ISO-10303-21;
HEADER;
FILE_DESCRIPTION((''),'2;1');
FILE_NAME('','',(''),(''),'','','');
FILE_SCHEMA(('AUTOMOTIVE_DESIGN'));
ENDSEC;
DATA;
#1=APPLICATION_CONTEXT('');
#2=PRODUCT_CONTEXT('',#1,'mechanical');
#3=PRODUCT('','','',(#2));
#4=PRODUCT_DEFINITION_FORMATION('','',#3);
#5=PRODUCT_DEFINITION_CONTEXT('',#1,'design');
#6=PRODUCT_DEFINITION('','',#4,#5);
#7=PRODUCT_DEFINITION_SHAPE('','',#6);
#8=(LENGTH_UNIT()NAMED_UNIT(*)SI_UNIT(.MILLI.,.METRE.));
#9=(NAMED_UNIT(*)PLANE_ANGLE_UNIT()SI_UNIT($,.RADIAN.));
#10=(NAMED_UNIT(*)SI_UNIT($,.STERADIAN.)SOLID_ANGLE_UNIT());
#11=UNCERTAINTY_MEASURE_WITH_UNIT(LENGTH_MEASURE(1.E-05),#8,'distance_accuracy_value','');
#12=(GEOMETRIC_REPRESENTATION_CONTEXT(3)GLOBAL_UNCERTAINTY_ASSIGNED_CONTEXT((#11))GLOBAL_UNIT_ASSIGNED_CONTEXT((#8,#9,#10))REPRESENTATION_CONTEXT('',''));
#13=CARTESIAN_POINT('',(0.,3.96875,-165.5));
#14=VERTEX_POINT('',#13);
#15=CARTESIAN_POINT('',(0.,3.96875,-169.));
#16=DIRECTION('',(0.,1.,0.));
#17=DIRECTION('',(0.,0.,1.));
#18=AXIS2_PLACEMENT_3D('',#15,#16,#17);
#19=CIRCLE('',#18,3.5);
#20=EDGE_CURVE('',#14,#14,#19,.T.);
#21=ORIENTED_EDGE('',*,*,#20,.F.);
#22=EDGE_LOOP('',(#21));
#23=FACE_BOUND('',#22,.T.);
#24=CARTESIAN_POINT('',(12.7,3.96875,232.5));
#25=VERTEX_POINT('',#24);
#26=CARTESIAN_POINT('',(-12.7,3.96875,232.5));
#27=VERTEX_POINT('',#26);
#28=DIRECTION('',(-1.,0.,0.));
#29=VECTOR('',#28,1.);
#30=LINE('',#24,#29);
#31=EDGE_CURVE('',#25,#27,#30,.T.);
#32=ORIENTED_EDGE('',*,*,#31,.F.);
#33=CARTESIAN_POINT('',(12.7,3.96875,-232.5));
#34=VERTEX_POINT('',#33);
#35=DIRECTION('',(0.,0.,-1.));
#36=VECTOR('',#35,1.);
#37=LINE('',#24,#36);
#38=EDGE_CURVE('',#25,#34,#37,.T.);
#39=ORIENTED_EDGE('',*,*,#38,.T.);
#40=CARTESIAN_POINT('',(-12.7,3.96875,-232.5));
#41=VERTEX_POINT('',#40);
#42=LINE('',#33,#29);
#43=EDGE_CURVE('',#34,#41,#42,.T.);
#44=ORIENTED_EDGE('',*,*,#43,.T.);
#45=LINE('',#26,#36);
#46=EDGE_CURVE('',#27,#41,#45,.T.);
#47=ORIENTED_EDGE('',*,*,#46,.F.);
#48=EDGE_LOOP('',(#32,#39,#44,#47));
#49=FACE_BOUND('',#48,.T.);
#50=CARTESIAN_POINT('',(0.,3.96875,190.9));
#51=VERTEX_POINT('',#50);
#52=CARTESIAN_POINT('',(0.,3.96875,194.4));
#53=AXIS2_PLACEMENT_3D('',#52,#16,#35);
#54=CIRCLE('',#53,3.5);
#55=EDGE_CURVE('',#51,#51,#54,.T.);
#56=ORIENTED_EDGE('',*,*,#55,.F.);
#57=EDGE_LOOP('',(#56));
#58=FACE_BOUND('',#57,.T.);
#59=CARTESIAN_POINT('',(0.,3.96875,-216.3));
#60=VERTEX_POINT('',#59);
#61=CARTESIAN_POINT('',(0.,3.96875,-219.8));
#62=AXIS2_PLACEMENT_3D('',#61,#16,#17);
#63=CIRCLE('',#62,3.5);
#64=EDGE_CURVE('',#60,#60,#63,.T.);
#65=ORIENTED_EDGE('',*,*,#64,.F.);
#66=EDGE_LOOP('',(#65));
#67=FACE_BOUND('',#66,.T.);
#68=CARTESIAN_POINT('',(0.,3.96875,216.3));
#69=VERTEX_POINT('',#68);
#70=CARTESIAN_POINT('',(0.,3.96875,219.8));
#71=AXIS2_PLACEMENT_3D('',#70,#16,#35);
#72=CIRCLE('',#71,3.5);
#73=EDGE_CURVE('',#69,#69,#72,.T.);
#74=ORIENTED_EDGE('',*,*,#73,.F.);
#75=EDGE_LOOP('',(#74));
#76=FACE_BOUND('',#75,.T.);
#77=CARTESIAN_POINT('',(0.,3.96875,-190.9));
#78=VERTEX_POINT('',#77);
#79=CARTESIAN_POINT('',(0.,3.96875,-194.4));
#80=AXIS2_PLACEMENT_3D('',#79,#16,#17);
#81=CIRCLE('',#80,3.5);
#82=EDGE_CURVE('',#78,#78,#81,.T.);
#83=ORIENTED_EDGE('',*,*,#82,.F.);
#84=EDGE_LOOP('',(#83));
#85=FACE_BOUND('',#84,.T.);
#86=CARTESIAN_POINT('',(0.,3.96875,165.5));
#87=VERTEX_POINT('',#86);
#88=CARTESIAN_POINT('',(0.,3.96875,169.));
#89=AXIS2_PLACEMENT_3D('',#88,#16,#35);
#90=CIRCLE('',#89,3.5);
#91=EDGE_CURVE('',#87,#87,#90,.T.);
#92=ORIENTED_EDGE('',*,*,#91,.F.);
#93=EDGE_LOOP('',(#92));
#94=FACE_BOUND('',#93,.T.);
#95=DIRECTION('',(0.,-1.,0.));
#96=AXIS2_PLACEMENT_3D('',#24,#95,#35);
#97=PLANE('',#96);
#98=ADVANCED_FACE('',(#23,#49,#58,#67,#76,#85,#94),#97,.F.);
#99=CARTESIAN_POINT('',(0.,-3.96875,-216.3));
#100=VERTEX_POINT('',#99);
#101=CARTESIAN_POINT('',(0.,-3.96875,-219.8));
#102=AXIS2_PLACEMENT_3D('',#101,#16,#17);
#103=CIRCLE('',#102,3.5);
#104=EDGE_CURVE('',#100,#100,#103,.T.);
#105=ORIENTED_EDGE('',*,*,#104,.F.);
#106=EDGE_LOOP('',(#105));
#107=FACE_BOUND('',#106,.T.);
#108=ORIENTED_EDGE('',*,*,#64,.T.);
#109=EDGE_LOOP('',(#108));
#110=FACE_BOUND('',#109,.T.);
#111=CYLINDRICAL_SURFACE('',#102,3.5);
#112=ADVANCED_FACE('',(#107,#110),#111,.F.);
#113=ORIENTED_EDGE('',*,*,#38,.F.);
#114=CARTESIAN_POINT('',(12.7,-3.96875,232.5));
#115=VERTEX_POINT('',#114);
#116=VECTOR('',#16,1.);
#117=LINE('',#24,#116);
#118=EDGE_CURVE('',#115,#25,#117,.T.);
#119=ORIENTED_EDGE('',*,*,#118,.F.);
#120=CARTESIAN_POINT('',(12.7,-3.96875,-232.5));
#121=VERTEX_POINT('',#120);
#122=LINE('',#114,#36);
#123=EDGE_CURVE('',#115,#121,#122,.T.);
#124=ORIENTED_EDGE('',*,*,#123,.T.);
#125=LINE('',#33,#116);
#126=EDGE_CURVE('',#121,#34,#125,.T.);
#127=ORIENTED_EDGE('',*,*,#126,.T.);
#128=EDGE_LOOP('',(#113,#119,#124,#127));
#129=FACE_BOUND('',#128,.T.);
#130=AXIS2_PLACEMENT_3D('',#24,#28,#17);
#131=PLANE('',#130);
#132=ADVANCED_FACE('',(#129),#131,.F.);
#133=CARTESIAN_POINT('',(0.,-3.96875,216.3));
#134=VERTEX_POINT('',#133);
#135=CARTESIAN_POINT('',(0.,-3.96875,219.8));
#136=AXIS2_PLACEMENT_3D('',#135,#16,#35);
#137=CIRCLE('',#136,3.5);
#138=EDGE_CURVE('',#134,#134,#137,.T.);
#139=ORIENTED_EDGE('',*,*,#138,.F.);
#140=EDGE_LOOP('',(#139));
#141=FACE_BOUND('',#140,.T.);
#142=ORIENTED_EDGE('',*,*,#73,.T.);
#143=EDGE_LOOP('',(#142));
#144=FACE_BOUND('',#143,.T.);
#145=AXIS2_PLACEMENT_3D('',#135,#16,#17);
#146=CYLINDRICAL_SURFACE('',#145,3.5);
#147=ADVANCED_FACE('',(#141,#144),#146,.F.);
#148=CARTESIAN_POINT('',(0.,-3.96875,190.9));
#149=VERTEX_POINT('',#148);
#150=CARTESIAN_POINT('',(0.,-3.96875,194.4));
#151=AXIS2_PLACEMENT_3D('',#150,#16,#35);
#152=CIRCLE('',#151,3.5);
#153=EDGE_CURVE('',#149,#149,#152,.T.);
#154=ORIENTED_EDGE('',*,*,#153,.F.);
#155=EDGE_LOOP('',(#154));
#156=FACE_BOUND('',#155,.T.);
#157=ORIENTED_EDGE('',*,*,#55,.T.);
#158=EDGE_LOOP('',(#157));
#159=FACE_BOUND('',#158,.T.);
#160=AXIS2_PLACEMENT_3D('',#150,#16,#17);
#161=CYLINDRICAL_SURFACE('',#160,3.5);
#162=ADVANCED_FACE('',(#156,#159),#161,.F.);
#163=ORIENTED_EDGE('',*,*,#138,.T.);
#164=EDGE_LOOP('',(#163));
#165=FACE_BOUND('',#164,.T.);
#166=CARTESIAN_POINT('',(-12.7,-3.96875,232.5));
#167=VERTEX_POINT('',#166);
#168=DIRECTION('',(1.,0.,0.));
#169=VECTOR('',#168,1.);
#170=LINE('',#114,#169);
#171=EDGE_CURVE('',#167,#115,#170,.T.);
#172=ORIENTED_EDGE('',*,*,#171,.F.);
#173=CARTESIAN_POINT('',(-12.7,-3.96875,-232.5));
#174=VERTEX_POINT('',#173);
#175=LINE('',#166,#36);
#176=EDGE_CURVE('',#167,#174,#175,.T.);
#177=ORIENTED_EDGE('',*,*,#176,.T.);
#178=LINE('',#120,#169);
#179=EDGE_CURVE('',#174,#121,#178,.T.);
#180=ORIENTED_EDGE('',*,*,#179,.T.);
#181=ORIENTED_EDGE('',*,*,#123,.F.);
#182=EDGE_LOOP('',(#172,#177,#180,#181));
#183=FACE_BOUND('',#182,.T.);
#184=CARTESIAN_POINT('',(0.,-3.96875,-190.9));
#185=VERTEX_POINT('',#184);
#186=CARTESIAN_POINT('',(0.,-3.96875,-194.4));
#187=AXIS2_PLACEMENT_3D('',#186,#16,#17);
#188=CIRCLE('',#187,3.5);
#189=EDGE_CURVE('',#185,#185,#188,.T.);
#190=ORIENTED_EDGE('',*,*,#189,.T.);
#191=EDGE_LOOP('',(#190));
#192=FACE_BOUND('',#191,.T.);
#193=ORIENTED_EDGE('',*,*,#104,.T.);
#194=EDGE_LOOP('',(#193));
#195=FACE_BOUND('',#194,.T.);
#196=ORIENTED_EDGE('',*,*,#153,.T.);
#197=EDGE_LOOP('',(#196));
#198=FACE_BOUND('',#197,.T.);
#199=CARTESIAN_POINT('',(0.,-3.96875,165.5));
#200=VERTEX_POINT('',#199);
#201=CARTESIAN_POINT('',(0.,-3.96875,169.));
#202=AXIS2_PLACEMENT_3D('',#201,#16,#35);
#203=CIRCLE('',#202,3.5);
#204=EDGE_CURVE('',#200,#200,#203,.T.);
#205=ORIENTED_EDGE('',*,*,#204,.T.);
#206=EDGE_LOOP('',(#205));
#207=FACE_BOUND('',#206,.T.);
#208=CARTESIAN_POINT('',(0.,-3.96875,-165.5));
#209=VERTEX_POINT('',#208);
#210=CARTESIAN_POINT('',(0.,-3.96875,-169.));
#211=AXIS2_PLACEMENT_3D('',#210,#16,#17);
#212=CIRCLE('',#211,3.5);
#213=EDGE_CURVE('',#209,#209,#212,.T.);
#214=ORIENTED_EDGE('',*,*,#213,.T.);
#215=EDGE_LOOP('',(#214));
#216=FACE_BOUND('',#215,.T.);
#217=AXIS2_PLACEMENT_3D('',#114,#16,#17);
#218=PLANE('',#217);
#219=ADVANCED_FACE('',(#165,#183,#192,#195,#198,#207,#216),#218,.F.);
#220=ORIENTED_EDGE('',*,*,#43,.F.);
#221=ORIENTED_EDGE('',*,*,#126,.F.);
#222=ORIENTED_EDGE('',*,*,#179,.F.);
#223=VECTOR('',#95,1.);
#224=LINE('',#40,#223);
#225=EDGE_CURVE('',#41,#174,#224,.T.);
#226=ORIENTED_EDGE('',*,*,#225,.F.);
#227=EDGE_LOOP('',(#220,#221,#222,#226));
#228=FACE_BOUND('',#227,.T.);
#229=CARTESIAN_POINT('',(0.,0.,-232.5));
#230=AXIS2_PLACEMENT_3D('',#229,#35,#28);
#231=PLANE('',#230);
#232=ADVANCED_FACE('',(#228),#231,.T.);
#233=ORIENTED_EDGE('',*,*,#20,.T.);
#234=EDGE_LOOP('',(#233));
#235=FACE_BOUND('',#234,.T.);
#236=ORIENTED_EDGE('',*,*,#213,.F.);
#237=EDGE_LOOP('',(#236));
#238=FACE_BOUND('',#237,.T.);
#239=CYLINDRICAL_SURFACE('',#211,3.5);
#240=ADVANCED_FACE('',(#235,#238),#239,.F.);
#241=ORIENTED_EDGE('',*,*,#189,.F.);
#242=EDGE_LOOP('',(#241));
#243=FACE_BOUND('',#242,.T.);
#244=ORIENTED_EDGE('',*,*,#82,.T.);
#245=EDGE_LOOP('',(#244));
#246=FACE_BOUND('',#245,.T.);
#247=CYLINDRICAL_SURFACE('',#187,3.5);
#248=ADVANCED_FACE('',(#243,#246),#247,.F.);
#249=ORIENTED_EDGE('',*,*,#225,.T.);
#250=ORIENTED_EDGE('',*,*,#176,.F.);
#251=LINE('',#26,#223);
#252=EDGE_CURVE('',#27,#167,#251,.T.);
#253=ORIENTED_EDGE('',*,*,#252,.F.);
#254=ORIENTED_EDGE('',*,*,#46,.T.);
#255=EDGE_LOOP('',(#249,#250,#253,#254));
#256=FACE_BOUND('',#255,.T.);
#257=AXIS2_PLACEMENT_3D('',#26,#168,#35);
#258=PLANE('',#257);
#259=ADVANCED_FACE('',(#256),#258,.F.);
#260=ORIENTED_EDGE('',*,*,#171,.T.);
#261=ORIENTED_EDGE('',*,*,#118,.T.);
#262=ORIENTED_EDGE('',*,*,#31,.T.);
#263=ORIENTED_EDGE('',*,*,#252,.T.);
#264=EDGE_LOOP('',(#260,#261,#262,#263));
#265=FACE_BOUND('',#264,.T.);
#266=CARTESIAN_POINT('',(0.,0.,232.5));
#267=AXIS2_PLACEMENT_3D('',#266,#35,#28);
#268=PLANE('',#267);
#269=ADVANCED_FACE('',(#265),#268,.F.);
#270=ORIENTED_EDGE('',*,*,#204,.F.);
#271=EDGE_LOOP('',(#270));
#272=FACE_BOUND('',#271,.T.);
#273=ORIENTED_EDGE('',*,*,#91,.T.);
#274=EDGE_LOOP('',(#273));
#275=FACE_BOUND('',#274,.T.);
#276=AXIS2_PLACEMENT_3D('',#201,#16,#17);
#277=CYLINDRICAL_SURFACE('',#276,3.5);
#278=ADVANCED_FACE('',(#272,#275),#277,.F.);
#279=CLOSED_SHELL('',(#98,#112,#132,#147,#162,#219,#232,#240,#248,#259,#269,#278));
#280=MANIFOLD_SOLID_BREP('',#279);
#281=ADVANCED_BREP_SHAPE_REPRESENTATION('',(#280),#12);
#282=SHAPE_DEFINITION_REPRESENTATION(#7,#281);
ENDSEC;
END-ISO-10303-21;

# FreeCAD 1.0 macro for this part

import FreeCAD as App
import Part
import Sketcher

doc = App.newDocument("Part")
body = doc.addObject("PartDesign::Body", "Body")

# Sketch on XY plane
sketch1 = body.newObject("Sketcher::SketchObject", "Sketch")
sketch1.AttachmentSupport = (doc.getObject("XY_Plane"), [""])
sketch1.MapMode = "FlatFace"
sketch1.addGeometry([
    Part.LineSegment(App.Vector(-12.7, 3.96875, 0), App.Vector(-12.7, -3.96875, 0)),
    Part.LineSegment(App.Vector(-12.7, -3.96875, 0), App.Vector(12.7, -3.96875, 0)),
    Part.LineSegment(App.Vector(12.7, -3.96875, 0), App.Vector(12.7, 3.96875, 0)),
    Part.LineSegment(App.Vector(12.7, 3.96875, 0), App.Vector(-12.7, 3.96875, 0)),
], False)
sketch1.addConstraint([
    Sketcher.Constraint("Coincident", 0, 2, 1, 1),
    Sketcher.Constraint("Coincident", 1, 2, 2, 1),
    Sketcher.Constraint("Coincident", 2, 2, 3, 1),
    Sketcher.Constraint("Coincident", 3, 2, 0, 1),
    Sketcher.Constraint("Vertical", 0),
    Sketcher.Constraint("Horizontal", 1),
    Sketcher.Constraint("Vertical", 2),
    Sketcher.Constraint("Horizontal", 3),
    Sketcher.Constraint("Symmetric", 0, 2, 2, 2, -1, 1),
    Sketcher.Constraint("DistanceX", 1, 1, 1, 2, 25.4),
    Sketcher.Constraint("DistanceY", 0, 2, 0, 1, 7.9375),
])
pad1 = body.newObject("PartDesign::Pad", "Pad")
pad1.Profile = sketch1
pad1.Length = 465
pad1.Midplane = True

# Sketch on XZ plane
sketch2 = body.newObject("Sketcher::SketchObject", "Sketch001")
sketch2.AttachmentSupport = (doc.getObject("XZ_Plane"), [""])
sketch2.MapMode = "FlatFace"
sketch2.AttachmentOffset = App.Placement(App.Vector(0, 0, -3.96875), App.Rotation())
sketch2.addGeometry([
    Part.Circle(App.Vector(0, -219.8, 0), App.Vector(0, 0, 1), 3.5),  # 0
    Part.Circle(App.Vector(0, -194.4, 0), App.Vector(0, 0, 1), 3.5),  # 1
    Part.Circle(App.Vector(0, -169, 0), App.Vector(0, 0, 1), 3.5),  # 2
    Part.Circle(App.Vector(0, 169, 0), App.Vector(0, 0, 1), 3.5),  # 3
    Part.Circle(App.Vector(0, 194.4, 0), App.Vector(0, 0, 1), 3.5),  # 4
    Part.Circle(App.Vector(0, 219.8, 0), App.Vector(0, 0, 1), 3.5),  # 5
], False)
sketch2.addConstraint([
    Sketcher.Constraint("Equal", 0, 1),
    Sketcher.Constraint("Equal", 1, 2),
    Sketcher.Constraint("Equal", 2, 3),
    Sketcher.Constraint("Equal", 3, 4),
    Sketcher.Constraint("Equal", 4, 5),
    Sketcher.Constraint("Symmetric", 2, 3, 3, 3, -1, 1),
    Sketcher.Constraint("Symmetric", 1, 3, 4, 3, -1, 1),
    Sketcher.Constraint("Symmetric", 0, 3, 5, 3, -1, 1),
    Sketcher.Constraint("PointOnObject", 0, 3, -2),
    Sketcher.Constraint("PointOnObject", 1, 3, -2),
    Sketcher.Constraint("PointOnObject", 2, 3, -2),
    Sketcher.Constraint("Diameter", 0, 7.0),
    Sketcher.Constraint("DistanceY", 2, 3, -1, 1, 169.0),
    Sketcher.Constraint("DistanceY", 0, 3, -1, 1, 219.8),
    Sketcher.Constraint("DistanceY", 1, 3, -1, 1, 194.4),
])
pocket1 = body.newObject("PartDesign::Pocket", "Pocket")
pocket1.Profile = sketch2
pocket1.Type = "ThroughAll"
pocket1.Reversed = True

doc.recompute()
